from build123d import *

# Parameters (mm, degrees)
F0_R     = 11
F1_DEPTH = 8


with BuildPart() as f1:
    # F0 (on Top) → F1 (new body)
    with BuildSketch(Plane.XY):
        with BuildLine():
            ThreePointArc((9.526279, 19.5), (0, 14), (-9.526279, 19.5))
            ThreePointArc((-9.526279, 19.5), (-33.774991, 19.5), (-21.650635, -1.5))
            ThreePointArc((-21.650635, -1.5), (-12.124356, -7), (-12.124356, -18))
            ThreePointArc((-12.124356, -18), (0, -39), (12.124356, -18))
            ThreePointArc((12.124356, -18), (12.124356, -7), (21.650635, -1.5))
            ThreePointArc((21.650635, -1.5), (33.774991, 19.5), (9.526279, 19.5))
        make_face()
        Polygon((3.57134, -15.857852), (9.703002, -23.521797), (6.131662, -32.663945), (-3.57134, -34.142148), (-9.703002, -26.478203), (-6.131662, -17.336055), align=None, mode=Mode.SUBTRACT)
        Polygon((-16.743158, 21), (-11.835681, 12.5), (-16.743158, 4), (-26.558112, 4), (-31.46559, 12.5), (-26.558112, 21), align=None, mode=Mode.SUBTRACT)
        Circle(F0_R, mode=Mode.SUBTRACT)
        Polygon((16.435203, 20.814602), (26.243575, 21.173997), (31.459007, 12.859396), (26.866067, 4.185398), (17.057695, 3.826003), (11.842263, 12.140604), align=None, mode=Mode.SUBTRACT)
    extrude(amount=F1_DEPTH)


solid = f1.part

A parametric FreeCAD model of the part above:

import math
import FreeCAD as App
import Part
import Sketcher
from FreeCAD import Vector
Q = App.Units.Quantity


def add_polygon(sketch, points):
    """Adds a closed chain of lines whose ends are joined by coincident constraints."""
    first, n = sketch.GeometryCount, len(points)
    for a, b in zip(points, points[1:] + points[:1]):
        sketch.addGeometry(Part.LineSegment(App.Vector(*a, 0), App.Vector(*b, 0)), False)
    for i in range(n):
        sketch.addConstraint(Sketcher.Constraint("Coincident", first + i, 2, first + (i + 1) % n, 1))

doc = App.newDocument("Part")
body = doc.addObject("PartDesign::Body", "Body")

sketch1 = doc.addObject("Sketcher::SketchObject", "Sketch")
body.addObject(sketch1)
sketch1.AttachmentSupport = (doc.XY_Plane, [""])
sketch1.MapMode = "FlatFace"
sketch1.addGeometry(Part.ArcOfCircle(Part.Circle(Vector(0, 24.999999, 0), Vector(0, 0, 1), 10.999999), math.radians(-150.000002), math.radians(-29.999998)), False)
sketch1.addGeometry(Part.ArcOfCircle(Part.Circle(Vector(-21.650635, 12.5, 0), Vector(0, 0, 1), 14), math.radians(29.999999), math.radians(270)), False)
sketch1.addGeometry(Part.ArcOfCircle(Part.Circle(Vector(-21.650635, -12.5, 0), Vector(0, 0, 1), 11), math.radians(-30), math.radians(89.999998)), False)
sketch1.addGeometry(Part.ArcOfCircle(Part.Circle(Vector(0, -25, 0), Vector(0, 0, 1), 14), math.radians(150.000001), math.radians(389.999999)), False)
sketch1.addGeometry(Part.ArcOfCircle(Part.Circle(Vector(21.650635, -12.5, 0), Vector(0, 0, 1), 11), math.radians(90.000002), math.radians(210)), False)
sketch1.addGeometry(Part.ArcOfCircle(Part.Circle(Vector(21.650635, 12.5, 0), Vector(0, 0, 1), 14), math.radians(-90), math.radians(150.000001)), False)
add_polygon(sketch1, [(-6.131662, -17.336055), (3.57134, -15.857852), (9.703002, -23.521797), (6.131662, -32.663945), (-3.57134, -34.142148), (-9.703002, -26.478203)])
add_polygon(sketch1, [(-26.558112, 21), (-16.743158, 21), (-11.835681, 12.5), (-16.743158, 4), (-26.558112, 4), (-31.46559, 12.5)])
sketch1.addGeometry(Part.Circle(Vector(0, 0, 0), Vector(0, 0, 1), 11), False)
add_polygon(sketch1, [(11.842263, 12.140604), (16.435203, 20.814602), (26.243575, 21.173997), (31.459007, 12.859396), (26.866067, 4.185398), (17.057695, 3.826003)])
sketch1.addConstraint(Sketcher.Constraint("Tangent", 0, 1, 1, 1))
sketch1.addConstraint(Sketcher.Constraint("Tangent", 1, 2, 2, 2))
sketch1.addConstraint(Sketcher.Constraint("Tangent", 2, 1, 3, 1))
sketch1.addConstraint(Sketcher.Constraint("Tangent", 3, 2, 4, 2))
sketch1.addConstraint(Sketcher.Constraint("Tangent", 4, 1, 5, 1))
sketch1.addConstraint(Sketcher.Constraint("Tangent", 5, 2, 0, 2))
sketch1.addConstraint(Sketcher.Constraint("Horizontal", 12))
sketch1.addConstraint(Sketcher.Constraint("Horizontal", 15))
sketch1.addConstraint(Sketcher.Constraint("Coincident", 18, 3, -1, 1))
sketch1.addConstraint(Sketcher.Constraint("Equal", 0, 2))
sketch1.addConstraint(Sketcher.Constraint("Equal", 1, 3))
sketch1.addConstraint(Sketcher.Constraint("Equal", 2, 4))
sketch1.addConstraint(Sketcher.Constraint("Equal", 3, 5))
sketch1.addConstraint(Sketcher.Constraint("Equal", 4, 18))
sketch1.addConstraint(Sketcher.Constraint("Symmetric", 0, 3, 3, 3, -1, 1))
sketch1.addConstraint(Sketcher.Constraint("Symmetric", 2, 3, 4, 3, -2))
sketch1.addConstraint(Sketcher.Constraint("Parallel", 6, 9))
sketch1.addConstraint(Sketcher.Constraint("Parallel", 7, 10))
sketch1.addConstraint(Sketcher.Constraint("Parallel", 8, 11))
sketch1.addConstraint(Sketcher.Constraint("Parallel", 13, 16))
sketch1.addConstraint(Sketcher.Constraint("Parallel", 14, 17))
sketch1.addConstraint(Sketcher.Constraint("Parallel", 19, 22))
sketch1.addConstraint(Sketcher.Constraint("Parallel", 20, 23))
sketch1.addConstraint(Sketcher.Constraint("Parallel", 21, 24))
sketch1.addConstraint(Sketcher.Constraint("Horizontal", 5, 3, 13, 2))
sketch1.addConstraint(Sketcher.Constraint("Horizontal", 13, 2, 16, 2))
sketch1.addConstraint(Sketcher.Constraint("Vertical", 1, 3, 2, 3))
sketch1.addConstraint(Sketcher.Constraint("Vertical", 12, 2, 14, 2))
sketch1.addConstraint(Sketcher.Constraint("Vertical", 15, 2, 17, 2))
sketch1.addConstraint(Sketcher.Constraint("Equal", 6, 7))
sketch1.addConstraint(Sketcher.Constraint("Equal", 7, 8))
sketch1.addConstraint(Sketcher.Constraint("Equal", 8, 9))
sketch1.addConstraint(Sketcher.Constraint("Equal", 11, 13))
sketch1.addConstraint(Sketcher.Constraint("Equal", 17, 19))
sketch1.addConstraint(Sketcher.Constraint("Equal", 19, 20))
sketch1.addConstraint(Sketcher.Constraint("Equal", 20, 21))
sketch1.addConstraint(Sketcher.Constraint("Equal", 21, 22))
sketch1.addConstraint(Sketcher.Constraint("Diameter", 18, 22.0))
sketch1.addConstraint(Sketcher.Constraint("Radius", 1, 14.0))
sketch1.addConstraint(Sketcher.Constraint("Angle", 13, Q("-60.000001 deg")))
sketch1.addConstraint(Sketcher.Constraint("DistanceY", -1, 1, 0, 3, 24.999999))
sketch1.addConstraint(Sketcher.Constraint("DistanceY", -1, 1, 12, 2, 21.0))
sketch1.addConstraint(Sketcher.Constraint("DistanceY", 22, 2, 21, 2, 8.673998))
sketch1.addConstraint(Sketcher.Constraint("DistanceY", -1, 1, 22, 2, 4.185398))
sketch1.addConstraint(Sketcher.Constraint("DistanceY", 5, 3, 19, 2, 8.314602))
sketch1.addConstraint(Sketcher.Constraint("DistanceY", 21, 2, 20, 2, 8.314601))
sketch1.addConstraint(Sketcher.Constraint("DistanceX", 12, 1, 12, 2, 9.814954))
sketch1.addConstraint(Sketcher.Constraint("DistanceX", -1, 1, 6, 2, 3.57134))
sketch1.addConstraint(Sketcher.Constraint("DistanceX", 9, 2, -1, 1, 3.57134))
sketch1.addConstraint(Sketcher.Constraint("DistanceX", 12, 2, -1, 1, 16.743158))
sketch1.addConstraint(Sketcher.Constraint("DistanceY", 3, 2, 6, 2, 2.142148))
sketch1.addConstraint(Sketcher.Constraint("DistanceX", 6, 2, 7, 2, 6.131662))
sketch1.addConstraint(Sketcher.Constraint("DistanceX", 8, 2, 7, 2, 3.57134))
sketch1.addConstraint(Sketcher.Constraint("DistanceX", 0, 1, 19, 2, 25.961482))
pad1 = doc.addObject("PartDesign::Pad", "Pad")
body.addObject(pad1)
pad1.Profile = sketch1
pad1.Length = 8

doc.recompute()
